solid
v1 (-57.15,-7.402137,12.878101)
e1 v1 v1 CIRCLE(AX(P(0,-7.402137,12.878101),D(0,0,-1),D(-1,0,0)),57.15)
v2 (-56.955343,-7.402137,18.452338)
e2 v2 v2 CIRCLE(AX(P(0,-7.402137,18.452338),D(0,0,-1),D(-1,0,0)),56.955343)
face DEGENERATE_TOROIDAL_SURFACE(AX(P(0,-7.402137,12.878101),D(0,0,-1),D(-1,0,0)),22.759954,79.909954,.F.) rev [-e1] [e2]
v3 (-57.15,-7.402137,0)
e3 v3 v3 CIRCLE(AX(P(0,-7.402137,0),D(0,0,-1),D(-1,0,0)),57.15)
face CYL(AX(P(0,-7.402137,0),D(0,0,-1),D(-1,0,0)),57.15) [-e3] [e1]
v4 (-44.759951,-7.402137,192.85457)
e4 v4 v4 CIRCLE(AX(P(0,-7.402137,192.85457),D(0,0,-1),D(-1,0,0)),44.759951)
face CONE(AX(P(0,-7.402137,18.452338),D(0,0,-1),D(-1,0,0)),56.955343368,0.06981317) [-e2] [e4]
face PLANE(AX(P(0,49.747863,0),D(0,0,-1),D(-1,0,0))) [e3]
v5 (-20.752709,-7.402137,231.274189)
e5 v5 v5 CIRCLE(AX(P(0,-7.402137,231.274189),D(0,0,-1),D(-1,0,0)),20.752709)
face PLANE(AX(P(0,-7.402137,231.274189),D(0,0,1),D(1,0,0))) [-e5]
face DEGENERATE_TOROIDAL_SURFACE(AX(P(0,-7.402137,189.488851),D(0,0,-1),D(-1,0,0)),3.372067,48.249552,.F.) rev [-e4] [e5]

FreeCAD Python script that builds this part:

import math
import FreeCAD as App
import Part
import Sketcher

V = App.Vector
Q = App.Units.Quantity

doc = App.newDocument("Part")
body = doc.addObject("PartDesign::Body", "Body")

sketch1 = body.newObject("Sketcher::SketchObject", "Sketch")
sketch1.AttachmentSupport = (doc.getObject("YZ_Plane"), [""])
sketch1.MapMode = "FlatFace"
sketch1.addGeometry([
    Part.LineSegment(V(50, 0, 0), V(50, 13, 0)),
    Part.ArcOfCircle(Part.Circle(V(-30, 13, 0), V(0, 0, 1), 80), math.radians(0), math.radians(4)),
    Part.LineSegment(V(50, 18, 0), V(37, 193, 0)),
    Part.ArcOfCircle(Part.Circle(V(-11, 189, 0), V(0, 0, 1), 48), math.radians(4), math.radians(60)),
    Part.LineSegment(V(13, 231, 0), V(-7, 231, 0)),
    Part.LineSegment(V(-7, 231, 0), V(-7, 0, 0)),
    Part.LineSegment(V(-7, 0, 0), V(50, 0, 0)),
], False)
sketch1.addGeometry(Part.LineSegment(V(-7, 0, 0), V(-7, 231, 0)), True)
sketch1.addConstraint([
    Sketcher.Constraint("Tangent", 0, 2, 1, 1),
    Sketcher.Constraint("Tangent", 1, 2, 2, 1),
    Sketcher.Constraint("Tangent", 2, 2, 3, 1),
    Sketcher.Constraint("Coincident", 3, 2, 4, 1),
    Sketcher.Constraint("Coincident", 4, 2, 5, 1),
    Sketcher.Constraint("Coincident", 5, 2, 6, 1),
    Sketcher.Constraint("Coincident", 6, 2, 0, 1),
    Sketcher.Constraint("Vertical", 0),
    Sketcher.Constraint("Horizontal", 4),
    Sketcher.Constraint("Vertical", 5),
    Sketcher.Constraint("Horizontal", 6),
    Sketcher.Constraint("Vertical", 7),
    Sketcher.Constraint("Coincident", 7, 1, 5, 2),
    Sketcher.Constraint("PointOnObject", 5, 2, -1),
    Sketcher.Constraint("Horizontal", 3, 2, 7, 2),
    Sketcher.Constraint("Angle", 2, Q("94 deg")),
    Sketcher.Constraint("DistanceX", 6, 1, 6, 2, Q("2.25 in")),
    Sketcher.Constraint("Radius", 3, Q("48.249552 mm")),
    Sketcher.Constraint("DistanceY", 0, 1, 0, 2, Q("12.878101 mm")),
    Sketcher.Constraint("Radius", 1, Q("79.909954 mm")),
    Sketcher.Constraint("DistanceX", 4, 2, 4, 1, Q("20.752709 mm")),
    Sketcher.Constraint("DistanceY", 5, 2, 5, 1, Q("231.274189 mm")),
    Sketcher.Constraint("DistanceX", 1, 3, -1, 1, Q("30.16209 mm")),
])
revolution = body.newObject("PartDesign::Revolution", "Revolution")
revolution.Profile = sketch1
revolution.ReferenceAxis = (sketch1, ["Axis0"])
revolution.Angle = 360

doc.recompute()
